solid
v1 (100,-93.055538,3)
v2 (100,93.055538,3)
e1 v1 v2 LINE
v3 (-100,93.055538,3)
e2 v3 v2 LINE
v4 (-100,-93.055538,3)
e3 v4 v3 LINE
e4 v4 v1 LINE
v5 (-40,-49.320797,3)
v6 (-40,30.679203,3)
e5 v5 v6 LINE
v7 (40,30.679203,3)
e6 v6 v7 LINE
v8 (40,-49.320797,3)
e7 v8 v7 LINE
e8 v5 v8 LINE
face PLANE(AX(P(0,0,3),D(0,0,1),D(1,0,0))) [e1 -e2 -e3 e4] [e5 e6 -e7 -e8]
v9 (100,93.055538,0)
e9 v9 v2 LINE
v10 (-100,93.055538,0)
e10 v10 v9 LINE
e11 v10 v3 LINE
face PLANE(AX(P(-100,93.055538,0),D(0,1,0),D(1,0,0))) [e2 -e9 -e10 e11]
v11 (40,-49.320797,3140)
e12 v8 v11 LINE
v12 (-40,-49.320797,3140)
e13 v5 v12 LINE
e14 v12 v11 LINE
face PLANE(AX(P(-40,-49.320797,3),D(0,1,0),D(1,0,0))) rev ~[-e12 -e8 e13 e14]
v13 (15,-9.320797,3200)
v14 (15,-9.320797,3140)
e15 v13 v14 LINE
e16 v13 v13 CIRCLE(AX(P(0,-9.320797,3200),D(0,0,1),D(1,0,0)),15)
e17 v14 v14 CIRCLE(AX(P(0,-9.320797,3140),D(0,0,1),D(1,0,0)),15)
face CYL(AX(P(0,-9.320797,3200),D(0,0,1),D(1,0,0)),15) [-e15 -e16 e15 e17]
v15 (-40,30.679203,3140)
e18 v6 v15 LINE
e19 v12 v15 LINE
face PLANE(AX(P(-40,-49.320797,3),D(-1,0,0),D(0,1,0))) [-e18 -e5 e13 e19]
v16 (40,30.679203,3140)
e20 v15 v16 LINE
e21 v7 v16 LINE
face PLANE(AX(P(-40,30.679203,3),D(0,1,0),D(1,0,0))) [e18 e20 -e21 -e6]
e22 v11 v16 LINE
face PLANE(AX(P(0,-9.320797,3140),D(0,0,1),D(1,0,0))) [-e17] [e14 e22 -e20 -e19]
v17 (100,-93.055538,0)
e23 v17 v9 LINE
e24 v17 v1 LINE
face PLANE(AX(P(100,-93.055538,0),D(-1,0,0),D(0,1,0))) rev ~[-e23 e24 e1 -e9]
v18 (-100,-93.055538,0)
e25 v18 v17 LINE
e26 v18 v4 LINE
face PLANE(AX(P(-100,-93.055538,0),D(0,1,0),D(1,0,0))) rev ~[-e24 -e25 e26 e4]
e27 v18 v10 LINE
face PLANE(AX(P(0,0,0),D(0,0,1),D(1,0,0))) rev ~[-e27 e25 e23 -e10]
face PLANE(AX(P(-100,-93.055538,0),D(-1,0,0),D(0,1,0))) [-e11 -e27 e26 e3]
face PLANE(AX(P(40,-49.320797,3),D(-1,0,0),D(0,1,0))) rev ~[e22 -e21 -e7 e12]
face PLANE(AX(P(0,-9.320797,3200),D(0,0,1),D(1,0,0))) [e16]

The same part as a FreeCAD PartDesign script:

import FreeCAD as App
import Part
import Sketcher

V = App.Vector
Q = App.Units.Quantity

doc = App.newDocument("Part")
body = doc.addObject("PartDesign::Body", "Body")

# Sketch on XY plane
sketch1 = body.newObject("Sketcher::SketchObject", "Sketch")
sketch1.AttachmentSupport = (doc.getObject("XY_Plane"), [""])
sketch1.MapMode = "FlatFace"
sketch1.addGeometry([
    Part.LineSegment(V(-100, 93, 0), V(-100, -93, 0)),
    Part.LineSegment(V(-100, -93, 0), V(100, -93, 0)),
    Part.LineSegment(V(100, -93, 0), V(100, 93, 0)),
    Part.LineSegment(V(100, 93, 0), V(-100, 93, 0)),
], False)
sketch1.addConstraint([
    Sketcher.Constraint("Coincident", 0, 2, 1, 1),
    Sketcher.Constraint("Coincident", 1, 2, 2, 1),
    Sketcher.Constraint("Coincident", 2, 2, 3, 1),
    Sketcher.Constraint("Coincident", 3, 2, 0, 1),
    Sketcher.Constraint("Vertical", 0),
    Sketcher.Constraint("Horizontal", 1),
    Sketcher.Constraint("Vertical", 2),
    Sketcher.Constraint("Horizontal", 3),
    Sketcher.Constraint("Symmetric", 0, 2, 2, 2, -1, 1),
    Sketcher.Constraint("DistanceX", 1, 1, 1, 2, Q("200 mm")),
    Sketcher.Constraint("DistanceY", 0, 2, 0, 1, Q("186.111076 mm")),
])
pad1 = body.newObject("PartDesign::Pad", "Pad")
pad1.Profile = sketch1
pad1.Length = 3

# Sketch on XY plane
sketch2 = body.newObject("Sketcher::SketchObject", "Sketch001")
sketch2.AttachmentSupport = (doc.getObject("XY_Plane"), [""])
sketch2.MapMode = "FlatFace"
sketch2.AttachmentOffset = App.Placement(V(0, 0, 3), App.Rotation())
sketch2.addGeometry([
    Part.LineSegment(V(-40, 31, 0), V(-40, -49, 0)),
    Part.LineSegment(V(-40, -49, 0), V(40, -49, 0)),
    Part.LineSegment(V(40, -49, 0), V(40, 31, 0)),
    Part.LineSegment(V(40, 31, 0), V(-40, 31, 0)),
], False)
sketch2.addConstraint([
    Sketcher.Constraint("Coincident", 0, 2, 1, 1),
    Sketcher.Constraint("Coincident", 1, 2, 2, 1),
    Sketcher.Constraint("Coincident", 2, 2, 3, 1),
    Sketcher.Constraint("Coincident", 3, 2, 0, 1),
    Sketcher.Constraint("Vertical", 0),
    Sketcher.Constraint("Horizontal", 1),
    Sketcher.Constraint("Vertical", 2),
    Sketcher.Constraint("Horizontal", 3),
    Sketcher.Constraint("Equal", 3, 0),
    Sketcher.Constraint("DistanceX", 1, 1, 1, 2, Q("80 mm")),
    Sketcher.Constraint("DistanceX", 0, 2, -1, 1, Q("40 mm")),
    Sketcher.Constraint("DistanceY", 0, 2, -1, 1, Q("49.320797 mm")),
])
pad2 = body.newObject("PartDesign::Pad", "Pad001")
pad2.Profile = sketch2
pad2.Length = 3197

# Sketch on XY plane
sketch3 = body.newObject("Sketcher::SketchObject", "Sketch002")
sketch3.AttachmentSupport = (doc.getObject("XY_Plane"), [""])
sketch3.MapMode = "FlatFace"
sketch3.AttachmentOffset = App.Placement(V(0, 0, 3200), App.Rotation())
sketch3.addGeometry([
    Part.LineSegment(V(-40, 31, 0), V(-40, -49, 0)),  # 0
    Part.LineSegment(V(-40, -49, 0), V(40, -49, 0)),  # 1
    Part.LineSegment(V(40, -49, 0), V(40, 31, 0)),  # 2
    Part.LineSegment(V(40, 31, 0), V(-40, 31, 0)),  # 3
    Part.Circle(V(0, -9, 0), V(0, 0, 1), 15),  # 4
], False)
sketch3.addConstraint([
    Sketcher.Constraint("Coincident", 0, 2, 1, 1),
    Sketcher.Constraint("Coincident", 1, 2, 2, 1),
    Sketcher.Constraint("Coincident", 2, 2, 3, 1),
    Sketcher.Constraint("Coincident", 3, 2, 0, 1),
    Sketcher.Constraint("Vertical", 0),
    Sketcher.Constraint("Horizontal", 1),
    Sketcher.Constraint("Vertical", 2),
    Sketcher.Constraint("Horizontal", 3),
    Sketcher.Constraint("PointOnObject", 4, 3, -2),
    Sketcher.Constraint("Equal", 3, 0),
    Sketcher.Constraint("Diameter", 4, Q("30 mm")),
    Sketcher.Constraint("DistanceX", 1, 1, 1, 2, Q("80 mm")),
    Sketcher.Constraint("DistanceX", 0, 2, -1, 1, Q("40 mm")),
    Sketcher.Constraint("DistanceY", 0, 2, 4, 3, Q("40 mm")),
    Sketcher.Constraint("DistanceY", 4, 3, -1, 1, Q("9.320797 mm")),
])
pocket1 = body.newObject("PartDesign::Pocket", "Pocket")
pocket1.Profile = sketch3
pocket1.Length = 60

doc.recompute()
